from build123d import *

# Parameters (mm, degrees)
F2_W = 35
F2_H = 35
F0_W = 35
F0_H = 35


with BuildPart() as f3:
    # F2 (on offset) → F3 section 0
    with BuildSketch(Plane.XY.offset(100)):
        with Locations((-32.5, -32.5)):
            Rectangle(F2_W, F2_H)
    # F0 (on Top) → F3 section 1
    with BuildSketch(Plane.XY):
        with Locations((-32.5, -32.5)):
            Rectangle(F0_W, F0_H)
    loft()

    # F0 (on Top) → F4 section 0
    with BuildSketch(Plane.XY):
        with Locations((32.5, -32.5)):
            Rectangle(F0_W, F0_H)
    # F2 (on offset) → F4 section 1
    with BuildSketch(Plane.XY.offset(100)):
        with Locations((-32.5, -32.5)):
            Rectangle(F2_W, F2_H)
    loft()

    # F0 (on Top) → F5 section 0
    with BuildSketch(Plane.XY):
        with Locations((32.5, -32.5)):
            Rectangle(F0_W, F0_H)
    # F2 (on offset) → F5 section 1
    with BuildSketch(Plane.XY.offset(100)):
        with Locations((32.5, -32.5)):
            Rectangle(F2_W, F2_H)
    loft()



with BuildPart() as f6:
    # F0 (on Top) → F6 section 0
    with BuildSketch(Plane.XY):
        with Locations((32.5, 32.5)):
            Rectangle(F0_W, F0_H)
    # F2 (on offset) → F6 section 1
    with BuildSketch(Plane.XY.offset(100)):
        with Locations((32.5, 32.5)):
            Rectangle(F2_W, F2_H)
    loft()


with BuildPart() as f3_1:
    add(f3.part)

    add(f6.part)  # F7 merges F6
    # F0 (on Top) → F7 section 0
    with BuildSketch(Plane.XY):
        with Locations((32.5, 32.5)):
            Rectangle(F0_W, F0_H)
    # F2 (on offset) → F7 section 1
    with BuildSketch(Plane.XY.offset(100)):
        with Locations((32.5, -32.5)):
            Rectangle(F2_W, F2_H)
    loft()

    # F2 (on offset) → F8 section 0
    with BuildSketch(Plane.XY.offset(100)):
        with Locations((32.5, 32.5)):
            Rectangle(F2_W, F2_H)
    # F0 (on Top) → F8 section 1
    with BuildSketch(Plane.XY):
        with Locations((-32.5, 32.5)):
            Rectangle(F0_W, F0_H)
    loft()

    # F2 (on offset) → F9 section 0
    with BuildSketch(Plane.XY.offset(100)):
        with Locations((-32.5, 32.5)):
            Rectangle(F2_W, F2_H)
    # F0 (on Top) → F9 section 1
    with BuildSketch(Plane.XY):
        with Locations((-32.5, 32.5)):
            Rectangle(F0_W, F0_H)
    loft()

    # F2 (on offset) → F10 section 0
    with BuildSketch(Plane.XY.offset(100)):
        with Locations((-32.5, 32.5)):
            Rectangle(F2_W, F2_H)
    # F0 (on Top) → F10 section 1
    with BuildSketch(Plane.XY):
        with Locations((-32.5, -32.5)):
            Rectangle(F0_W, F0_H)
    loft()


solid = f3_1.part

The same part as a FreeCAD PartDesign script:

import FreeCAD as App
import Part
import Sketcher

V = App.Vector

doc = App.newDocument("Part")
params = doc.addObject("Spreadsheet::Sheet", "Params")
for row, (alias, value) in enumerate([
    ("sketch1_width", "35 mm"),
    ("sketch2_width", "35 mm"),
    ("sketch3_width", "35 mm"),
    ("sketch4_width", "35 mm"),
    ("sketch5_width", "35 mm"),
    ("sketch6_width", "35 mm"),
    ("sketch7_width", "35 mm"),
    ("sketch8_width", "35 mm"),
    ("sketch9_width", "35 mm"),
    ("sketch10_width", "35 mm"),
    ("sketch11_width", "35 mm"),
    ("sketch12_width", "35 mm"),
    ("sketch13_width", "35 mm"),
    ("sketch14_width", "35 mm"),
    ("sketch15_width", "35 mm"),
    ("sketch16_width", "35 mm"),
], start=1):
    params.set(f"A{row}", alias)
    params.set(f"B{row}", "=" + value)
    params.setAlias(f"B{row}", alias)

body = doc.addObject("PartDesign::Body", "Body")

sketch1 = body.newObject("Sketcher::SketchObject", "Sketch")
sketch1.AttachmentSupport = (doc.getObject("XY_Plane"), [""])
sketch1.MapMode = "FlatFace"
sketch1.AttachmentOffset = App.Placement(V(0, 0, 100), App.Rotation())
sketch1.addGeometry([
    Part.LineSegment(V(-50, -15, 0), V(-50, -50, 0)),
    Part.LineSegment(V(-50, -50, 0), V(-15, -50, 0)),
    Part.LineSegment(V(-15, -50, 0), V(-15, -15, 0)),
    Part.LineSegment(V(-15, -15, 0), V(-50, -15, 0)),
], False)
sketch1.addConstraint([
    Sketcher.Constraint("Coincident", 0, 2, 1, 1),
    Sketcher.Constraint("Coincident", 1, 2, 2, 1),
    Sketcher.Constraint("Coincident", 2, 2, 3, 1),
    Sketcher.Constraint("Coincident", 3, 2, 0, 1),
    Sketcher.Constraint("Vertical", 0),
    Sketcher.Constraint("Horizontal", 1),
    Sketcher.Constraint("Vertical", 2),
    Sketcher.Constraint("Horizontal", 3),
    Sketcher.Constraint("Equal", 3, 0),
    Sketcher.Constraint("DistanceX", 1, 1, 1, 2, 35.0),
    Sketcher.Constraint("DistanceX", 0, 2, -1, 1, 50.0),
    Sketcher.Constraint("DistanceY", 0, 2, -1, 1, 50.0),
])
sketch1.setExpression("Constraints[9]", "Params.sketch1_width")

sketch2 = body.newObject("Sketcher::SketchObject", "Sketch001")
sketch2.AttachmentSupport = (doc.getObject("XY_Plane"), [""])
sketch2.MapMode = "FlatFace"
sketch2.addGeometry([
    Part.LineSegment(V(-50, -15, 0), V(-50, -50, 0)),
    Part.LineSegment(V(-50, -50, 0), V(-15, -50, 0)),
    Part.LineSegment(V(-15, -50, 0), V(-15, -15, 0)),
    Part.LineSegment(V(-15, -15, 0), V(-50, -15, 0)),
], False)
sketch2.addConstraint([
    Sketcher.Constraint("Coincident", 0, 2, 1, 1),
    Sketcher.Constraint("Coincident", 1, 2, 2, 1),
    Sketcher.Constraint("Coincident", 2, 2, 3, 1),
    Sketcher.Constraint("Coincident", 3, 2, 0, 1),
    Sketcher.Constraint("Vertical", 0),
    Sketcher.Constraint("Horizontal", 1),
    Sketcher.Constraint("Vertical", 2),
    Sketcher.Constraint("Horizontal", 3),
    Sketcher.Constraint("Equal", 3, 0),
    Sketcher.Constraint("DistanceX", 1, 1, 1, 2, 35.0),
    Sketcher.Constraint("DistanceX", 0, 2, -1, 1, 50.0),
    Sketcher.Constraint("DistanceY", 0, 2, -1, 1, 50.0),
])
sketch2.setExpression("Constraints[9]", "Params.sketch2_width")

additiveloft = body.newObject("PartDesign::AdditiveLoft", "AdditiveLoft")
additiveloft.Profile = sketch1
additiveloft.Sections = [sketch2]

sketch3 = body.newObject("Sketcher::SketchObject", "Sketch002")
sketch3.AttachmentSupport = (doc.getObject("XY_Plane"), [""])
sketch3.MapMode = "FlatFace"
sketch3.addGeometry([
    Part.LineSegment(V(15, -15, 0), V(15, -50, 0)),
    Part.LineSegment(V(15, -50, 0), V(50, -50, 0)),
    Part.LineSegment(V(50, -50, 0), V(50, -15, 0)),
    Part.LineSegment(V(50, -15, 0), V(15, -15, 0)),
], False)
sketch3.addConstraint([
    Sketcher.Constraint("Coincident", 0, 2, 1, 1),
    Sketcher.Constraint("Coincident", 1, 2, 2, 1),
    Sketcher.Constraint("Coincident", 2, 2, 3, 1),
    Sketcher.Constraint("Coincident", 3, 2, 0, 1),
    Sketcher.Constraint("Vertical", 0),
    Sketcher.Constraint("Horizontal", 1),
    Sketcher.Constraint("Vertical", 2),
    Sketcher.Constraint("Horizontal", 3),
    Sketcher.Constraint("Equal", 3, 0),
    Sketcher.Constraint("DistanceX", 1, 1, 1, 2, 35.0),
    Sketcher.Constraint("DistanceX", -1, 1, 0, 2, 15.0),
    Sketcher.Constraint("DistanceY", 0, 2, -1, 1, 50.0),
])
sketch3.setExpression("Constraints[9]", "Params.sketch3_width")

sketch4 = body.newObject("Sketcher::SketchObject", "Sketch003")
sketch4.AttachmentSupport = (doc.getObject("XY_Plane"), [""])
sketch4.MapMode = "FlatFace"
sketch4.AttachmentOffset = App.Placement(V(0, 0, 100), App.Rotation())
sketch4.addGeometry([
    Part.LineSegment(V(-50, -15, 0), V(-50, -50, 0)),
    Part.LineSegment(V(-50, -50, 0), V(-15, -50, 0)),
    Part.LineSegment(V(-15, -50, 0), V(-15, -15, 0)),
    Part.LineSegment(V(-15, -15, 0), V(-50, -15, 0)),
], False)
sketch4.addConstraint([
    Sketcher.Constraint("Coincident", 0, 2, 1, 1),
    Sketcher.Constraint("Coincident", 1, 2, 2, 1),
    Sketcher.Constraint("Coincident", 2, 2, 3, 1),
    Sketcher.Constraint("Coincident", 3, 2, 0, 1),
    Sketcher.Constraint("Vertical", 0),
    Sketcher.Constraint("Horizontal", 1),
    Sketcher.Constraint("Vertical", 2),
    Sketcher.Constraint("Horizontal", 3),
    Sketcher.Constraint("Equal", 3, 0),
    Sketcher.Constraint("DistanceX", 1, 1, 1, 2, 35.0),
    Sketcher.Constraint("DistanceX", 0, 2, -1, 1, 50.0),
    Sketcher.Constraint("DistanceY", 0, 2, -1, 1, 50.0),
])
sketch4.setExpression("Constraints[9]", "Params.sketch4_width")

additiveloft2 = body.newObject("PartDesign::AdditiveLoft", "AdditiveLoft001")
additiveloft2.Profile = sketch3
additiveloft2.Sections = [sketch4]

sketch5 = body.newObject("Sketcher::SketchObject", "Sketch004")
sketch5.AttachmentSupport = (doc.getObject("XY_Plane"), [""])
sketch5.MapMode = "FlatFace"
sketch5.addGeometry([
    Part.LineSegment(V(15, -15, 0), V(15, -50, 0)),
    Part.LineSegment(V(15, -50, 0), V(50, -50, 0)),
    Part.LineSegment(V(50, -50, 0), V(50, -15, 0)),
    Part.LineSegment(V(50, -15, 0), V(15, -15, 0)),
], False)
sketch5.addConstraint([
    Sketcher.Constraint("Coincident", 0, 2, 1, 1),
    Sketcher.Constraint("Coincident", 1, 2, 2, 1),
    Sketcher.Constraint("Coincident", 2, 2, 3, 1),
    Sketcher.Constraint("Coincident", 3, 2, 0, 1),
    Sketcher.Constraint("Vertical", 0),
    Sketcher.Constraint("Horizontal", 1),
    Sketcher.Constraint("Vertical", 2),
    Sketcher.Constraint("Horizontal", 3),
    Sketcher.Constraint("Equal", 3, 0),
    Sketcher.Constraint("DistanceX", 1, 1, 1, 2, 35.0),
    Sketcher.Constraint("DistanceX", -1, 1, 0, 2, 15.0),
    Sketcher.Constraint("DistanceY", 0, 2, -1, 1, 50.0),
])
sketch5.setExpression("Constraints[9]", "Params.sketch5_width")

sketch6 = body.newObject("Sketcher::SketchObject", "Sketch005")
sketch6.AttachmentSupport = (doc.getObject("XY_Plane"), [""])
sketch6.MapMode = "FlatFace"
sketch6.AttachmentOffset = App.Placement(V(0, 0, 100), App.Rotation())
sketch6.addGeometry([
    Part.LineSegment(V(15, -15, 0), V(15, -50, 0)),
    Part.LineSegment(V(15, -50, 0), V(50, -50, 0)),
    Part.LineSegment(V(50, -50, 0), V(50, -15, 0)),
    Part.LineSegment(V(50, -15, 0), V(15, -15, 0)),
], False)
sketch6.addConstraint([
    Sketcher.Constraint("Coincident", 0, 2, 1, 1),
    Sketcher.Constraint("Coincident", 1, 2, 2, 1),
    Sketcher.Constraint("Coincident", 2, 2, 3, 1),
    Sketcher.Constraint("Coincident", 3, 2, 0, 1),
    Sketcher.Constraint("Vertical", 0),
    Sketcher.Constraint("Horizontal", 1),
    Sketcher.Constraint("Vertical", 2),
    Sketcher.Constraint("Horizontal", 3),
    Sketcher.Constraint("Equal", 3, 0),
    Sketcher.Constraint("DistanceX", 1, 1, 1, 2, 35.0),
    Sketcher.Constraint("DistanceX", -1, 1, 0, 2, 15.0),
    Sketcher.Constraint("DistanceY", 0, 2, -1, 1, 50.0),
])
sketch6.setExpression("Constraints[9]", "Params.sketch6_width")

additiveloft3 = body.newObject("PartDesign::AdditiveLoft", "AdditiveLoft002")
additiveloft3.Profile = sketch5
additiveloft3.Sections = [sketch6]
body2 = doc.addObject("PartDesign::Body", "Body001")

sketch7 = body2.newObject("Sketcher::SketchObject", "Sketch006")
sketch7.AttachmentSupport = (doc.getObject("XY_Plane001"), [""])
sketch7.MapMode = "FlatFace"
sketch7.addGeometry([
    Part.LineSegment(V(15, 50, 0), V(15, 15, 0)),
    Part.LineSegment(V(15, 15, 0), V(50, 15, 0)),
    Part.LineSegment(V(50, 15, 0), V(50, 50, 0)),
    Part.LineSegment(V(50, 50, 0), V(15, 50, 0)),
], False)
sketch7.addConstraint([
    Sketcher.Constraint("Coincident", 0, 2, 1, 1),
    Sketcher.Constraint("Coincident", 1, 2, 2, 1),
    Sketcher.Constraint("Coincident", 2, 2, 3, 1),
    Sketcher.Constraint("Coincident", 3, 2, 0, 1),
    Sketcher.Constraint("Vertical", 0),
    Sketcher.Constraint("Horizontal", 1),
    Sketcher.Constraint("Vertical", 2),
    Sketcher.Constraint("Horizontal", 3),
    Sketcher.Constraint("Equal", 3, 0),
    Sketcher.Constraint("DistanceX", 1, 1, 1, 2, 35.0),
    Sketcher.Constraint("DistanceX", -1, 1, 0, 2, 15.0),
    Sketcher.Constraint("DistanceY", -1, 1, 0, 2, 15.0),
])
sketch7.setExpression("Constraints[9]", "Params.sketch7_width")

sketch8 = body2.newObject("Sketcher::SketchObject", "Sketch007")
sketch8.AttachmentSupport = (doc.getObject("XY_Plane001"), [""])
sketch8.MapMode = "FlatFace"
sketch8.AttachmentOffset = App.Placement(V(0, 0, 100), App.Rotation())
sketch8.addGeometry([
    Part.LineSegment(V(15, 50, 0), V(15, 15, 0)),
    Part.LineSegment(V(15, 15, 0), V(50, 15, 0)),
    Part.LineSegment(V(50, 15, 0), V(50, 50, 0)),
    Part.LineSegment(V(50, 50, 0), V(15, 50, 0)),
], False)
sketch8.addConstraint([
    Sketcher.Constraint("Coincident", 0, 2, 1, 1),
    Sketcher.Constraint("Coincident", 1, 2, 2, 1),
    Sketcher.Constraint("Coincident", 2, 2, 3, 1),
    Sketcher.Constraint("Coincident", 3, 2, 0, 1),
    Sketcher.Constraint("Vertical", 0),
    Sketcher.Constraint("Horizontal", 1),
    Sketcher.Constraint("Vertical", 2),
    Sketcher.Constraint("Horizontal", 3),
    Sketcher.Constraint("Equal", 3, 0),
    Sketcher.Constraint("DistanceX", 1, 1, 1, 2, 35.0),
    Sketcher.Constraint("DistanceX", -1, 1, 0, 2, 15.0),
    Sketcher.Constraint("DistanceY", -1, 1, 0, 2, 15.0),
])
sketch8.setExpression("Constraints[9]", "Params.sketch8_width")

additiveloft4 = body2.newObject("PartDesign::AdditiveLoft", "AdditiveLoft003")
additiveloft4.Profile = sketch7
additiveloft4.Sections = [sketch8]
body.AllowCompound = True
doc.recompute()

boolean = body.newObject("PartDesign::Boolean", "Boolean")
boolean.Type = "Fuse"
boolean.addObjects([body2])

sketch9 = body.newObject("Sketcher::SketchObject", "Sketch008")
sketch9.AttachmentSupport = (doc.getObject("XY_Plane"), [""])
sketch9.MapMode = "FlatFace"
sketch9.addGeometry([
    Part.LineSegment(V(15, 50, 0), V(15, 15, 0)),
    Part.LineSegment(V(15, 15, 0), V(50, 15, 0)),
    Part.LineSegment(V(50, 15, 0), V(50, 50, 0)),
    Part.LineSegment(V(50, 50, 0), V(15, 50, 0)),
], False)
sketch9.addConstraint([
    Sketcher.Constraint("Coincident", 0, 2, 1, 1),
    Sketcher.Constraint("Coincident", 1, 2, 2, 1),
    Sketcher.Constraint("Coincident", 2, 2, 3, 1),
    Sketcher.Constraint("Coincident", 3, 2, 0, 1),
    Sketcher.Constraint("Vertical", 0),
    Sketcher.Constraint("Horizontal", 1),
    Sketcher.Constraint("Vertical", 2),
    Sketcher.Constraint("Horizontal", 3),
    Sketcher.Constraint("Equal", 3, 0),
    Sketcher.Constraint("DistanceX", 1, 1, 1, 2, 35.0),
    Sketcher.Constraint("DistanceX", -1, 1, 0, 2, 15.0),
    Sketcher.Constraint("DistanceY", -1, 1, 0, 2, 15.0),
])
sketch9.setExpression("Constraints[9]", "Params.sketch9_width")

sketch10 = body.newObject("Sketcher::SketchObject", "Sketch009")
sketch10.AttachmentSupport = (doc.getObject("XY_Plane"), [""])
sketch10.MapMode = "FlatFace"
sketch10.AttachmentOffset = App.Placement(V(0, 0, 100), App.Rotation())
sketch10.addGeometry([
    Part.LineSegment(V(15, -15, 0), V(15, -50, 0)),
    Part.LineSegment(V(15, -50, 0), V(50, -50, 0)),
    Part.LineSegment(V(50, -50, 0), V(50, -15, 0)),
    Part.LineSegment(V(50, -15, 0), V(15, -15, 0)),
], False)
sketch10.addConstraint([
    Sketcher.Constraint("Coincident", 0, 2, 1, 1),
    Sketcher.Constraint("Coincident", 1, 2, 2, 1),
    Sketcher.Constraint("Coincident", 2, 2, 3, 1),
    Sketcher.Constraint("Coincident", 3, 2, 0, 1),
    Sketcher.Constraint("Vertical", 0),
    Sketcher.Constraint("Horizontal", 1),
    Sketcher.Constraint("Vertical", 2),
    Sketcher.Constraint("Horizontal", 3),
    Sketcher.Constraint("Equal", 3, 0),
    Sketcher.Constraint("DistanceX", 1, 1, 1, 2, 35.0),
    Sketcher.Constraint("DistanceX", -1, 1, 0, 2, 15.0),
    Sketcher.Constraint("DistanceY", 0, 2, -1, 1, 50.0),
])
sketch10.setExpression("Constraints[9]", "Params.sketch10_width")

additiveloft5 = body.newObject("PartDesign::AdditiveLoft", "AdditiveLoft004")
additiveloft5.Profile = sketch9
additiveloft5.Sections = [sketch10]

sketch11 = body.newObject("Sketcher::SketchObject", "Sketch010")
sketch11.AttachmentSupport = (doc.getObject("XY_Plane"), [""])
sketch11.MapMode = "FlatFace"
sketch11.AttachmentOffset = App.Placement(V(0, 0, 100), App.Rotation())
sketch11.addGeometry([
    Part.LineSegment(V(15, 50, 0), V(15, 15, 0)),
    Part.LineSegment(V(15, 15, 0), V(50, 15, 0)),
    Part.LineSegment(V(50, 15, 0), V(50, 50, 0)),
    Part.LineSegment(V(50, 50, 0), V(15, 50, 0)),
], False)
sketch11.addConstraint([
    Sketcher.Constraint("Coincident", 0, 2, 1, 1),
    Sketcher.Constraint("Coincident", 1, 2, 2, 1),
    Sketcher.Constraint("Coincident", 2, 2, 3, 1),
    Sketcher.Constraint("Coincident", 3, 2, 0, 1),
    Sketcher.Constraint("Vertical", 0),
    Sketcher.Constraint("Horizontal", 1),
    Sketcher.Constraint("Vertical", 2),
    Sketcher.Constraint("Horizontal", 3),
    Sketcher.Constraint("Equal", 3, 0),
    Sketcher.Constraint("DistanceX", 1, 1, 1, 2, 35.0),
    Sketcher.Constraint("DistanceX", -1, 1, 0, 2, 15.0),
    Sketcher.Constraint("DistanceY", -1, 1, 0, 2, 15.0),
])
sketch11.setExpression("Constraints[9]", "Params.sketch11_width")

sketch12 = body.newObject("Sketcher::SketchObject", "Sketch011")
sketch12.AttachmentSupport = (doc.getObject("XY_Plane"), [""])
sketch12.MapMode = "FlatFace"
sketch12.addGeometry([
    Part.LineSegment(V(-50, 50, 0), V(-50, 15, 0)),
    Part.LineSegment(V(-50, 15, 0), V(-15, 15, 0)),
    Part.LineSegment(V(-15, 15, 0), V(-15, 50, 0)),
    Part.LineSegment(V(-15, 50, 0), V(-50, 50, 0)),
], False)
sketch12.addConstraint([
    Sketcher.Constraint("Coincident", 0, 2, 1, 1),
    Sketcher.Constraint("Coincident", 1, 2, 2, 1),
    Sketcher.Constraint("Coincident", 2, 2, 3, 1),
    Sketcher.Constraint("Coincident", 3, 2, 0, 1),
    Sketcher.Constraint("Vertical", 0),
    Sketcher.Constraint("Horizontal", 1),
    Sketcher.Constraint("Vertical", 2),
    Sketcher.Constraint("Horizontal", 3),
    Sketcher.Constraint("Equal", 3, 0),
    Sketcher.Constraint("DistanceX", 1, 1, 1, 2, 35.0),
    Sketcher.Constraint("DistanceX", 0, 2, -1, 1, 50.0),
    Sketcher.Constraint("DistanceY", -1, 1, 0, 2, 15.0),
])
sketch12.setExpression("Constraints[9]", "Params.sketch12_width")

additiveloft6 = body.newObject("PartDesign::AdditiveLoft", "AdditiveLoft005")
additiveloft6.Profile = sketch11
additiveloft6.Sections = [sketch12]

sketch13 = body.newObject("Sketcher::SketchObject", "Sketch012")
sketch13.AttachmentSupport = (doc.getObject("XY_Plane"), [""])
sketch13.MapMode = "FlatFace"
sketch13.AttachmentOffset = App.Placement(V(0, 0, 100), App.Rotation())
sketch13.addGeometry([
    Part.LineSegment(V(-50, 50, 0), V(-50, 15, 0)),
    Part.LineSegment(V(-50, 15, 0), V(-15, 15, 0)),
    Part.LineSegment(V(-15, 15, 0), V(-15, 50, 0)),
    Part.LineSegment(V(-15, 50, 0), V(-50, 50, 0)),
], False)
sketch13.addConstraint([
    Sketcher.Constraint("Coincident", 0, 2, 1, 1),
    Sketcher.Constraint("Coincident", 1, 2, 2, 1),
    Sketcher.Constraint("Coincident", 2, 2, 3, 1),
    Sketcher.Constraint("Coincident", 3, 2, 0, 1),
    Sketcher.Constraint("Vertical", 0),
    Sketcher.Constraint("Horizontal", 1),
    Sketcher.Constraint("Vertical", 2),
    Sketcher.Constraint("Horizontal", 3),
    Sketcher.Constraint("Equal", 3, 0),
    Sketcher.Constraint("DistanceX", 1, 1, 1, 2, 35.0),
    Sketcher.Constraint("DistanceX", 0, 2, -1, 1, 50.0),
    Sketcher.Constraint("DistanceY", -1, 1, 0, 2, 15.0),
])
sketch13.setExpression("Constraints[9]", "Params.sketch13_width")

sketch14 = body.newObject("Sketcher::SketchObject", "Sketch013")
sketch14.AttachmentSupport = (doc.getObject("XY_Plane"), [""])
sketch14.MapMode = "FlatFace"
sketch14.addGeometry([
    Part.LineSegment(V(-50, 50, 0), V(-50, 15, 0)),
    Part.LineSegment(V(-50, 15, 0), V(-15, 15, 0)),
    Part.LineSegment(V(-15, 15, 0), V(-15, 50, 0)),
    Part.LineSegment(V(-15, 50, 0), V(-50, 50, 0)),
], False)
sketch14.addConstraint([
    Sketcher.Constraint("Coincident", 0, 2, 1, 1),
    Sketcher.Constraint("Coincident", 1, 2, 2, 1),
    Sketcher.Constraint("Coincident", 2, 2, 3, 1),
    Sketcher.Constraint("Coincident", 3, 2, 0, 1),
    Sketcher.Constraint("Vertical", 0),
    Sketcher.Constraint("Horizontal", 1),
    Sketcher.Constraint("Vertical", 2),
    Sketcher.Constraint("Horizontal", 3),
    Sketcher.Constraint("Equal", 3, 0),
    Sketcher.Constraint("DistanceX", 1, 1, 1, 2, 35.0),
    Sketcher.Constraint("DistanceX", 0, 2, -1, 1, 50.0),
    Sketcher.Constraint("DistanceY", -1, 1, 0, 2, 15.0),
])
sketch14.setExpression("Constraints[9]", "Params.sketch14_width")

additiveloft7 = body.newObject("PartDesign::AdditiveLoft", "AdditiveLoft006")
additiveloft7.Profile = sketch13
additiveloft7.Sections = [sketch14]

sketch15 = body.newObject("Sketcher::SketchObject", "Sketch014")
sketch15.AttachmentSupport = (doc.getObject("XY_Plane"), [""])
sketch15.MapMode = "FlatFace"
sketch15.AttachmentOffset = App.Placement(V(0, 0, 100), App.Rotation())
sketch15.addGeometry([
    Part.LineSegment(V(-50, 50, 0), V(-50, 15, 0)),
    Part.LineSegment(V(-50, 15, 0), V(-15, 15, 0)),
    Part.LineSegment(V(-15, 15, 0), V(-15, 50, 0)),
    Part.LineSegment(V(-15, 50, 0), V(-50, 50, 0)),
], False)
sketch15.addConstraint([
    Sketcher.Constraint("Coincident", 0, 2, 1, 1),
    Sketcher.Constraint("Coincident", 1, 2, 2, 1),
    Sketcher.Constraint("Coincident", 2, 2, 3, 1),
    Sketcher.Constraint("Coincident", 3, 2, 0, 1),
    Sketcher.Constraint("Vertical", 0),
    Sketcher.Constraint("Horizontal", 1),
    Sketcher.Constraint("Vertical", 2),
    Sketcher.Constraint("Horizontal", 3),
    Sketcher.Constraint("Equal", 3, 0),
    Sketcher.Constraint("DistanceX", 1, 1, 1, 2, 35.0),
    Sketcher.Constraint("DistanceX", 0, 2, -1, 1, 50.0),
    Sketcher.Constraint("DistanceY", -1, 1, 0, 2, 15.0),
])
sketch15.setExpression("Constraints[9]", "Params.sketch15_width")

sketch16 = body.newObject("Sketcher::SketchObject", "Sketch015")
sketch16.AttachmentSupport = (doc.getObject("XY_Plane"), [""])
sketch16.MapMode = "FlatFace"
sketch16.addGeometry([
    Part.LineSegment(V(-50, -15, 0), V(-50, -50, 0)),
    Part.LineSegment(V(-50, -50, 0), V(-15, -50, 0)),
    Part.LineSegment(V(-15, -50, 0), V(-15, -15, 0)),
    Part.LineSegment(V(-15, -15, 0), V(-50, -15, 0)),
], False)
sketch16.addConstraint([
    Sketcher.Constraint("Coincident", 0, 2, 1, 1),
    Sketcher.Constraint("Coincident", 1, 2, 2, 1),
    Sketcher.Constraint("Coincident", 2, 2, 3, 1),
    Sketcher.Constraint("Coincident", 3, 2, 0, 1),
    Sketcher.Constraint("Vertical", 0),
    Sketcher.Constraint("Horizontal", 1),
    Sketcher.Constraint("Vertical", 2),
    Sketcher.Constraint("Horizontal", 3),
    Sketcher.Constraint("Equal", 3, 0),
    Sketcher.Constraint("DistanceX", 1, 1, 1, 2, 35.0),
    Sketcher.Constraint("DistanceX", 0, 2, -1, 1, 50.0),
    Sketcher.Constraint("DistanceY", 0, 2, -1, 1, 50.0),
])
sketch16.setExpression("Constraints[9]", "Params.sketch16_width")

additiveloft8 = body.newObject("PartDesign::AdditiveLoft", "AdditiveLoft007")
additiveloft8.Profile = sketch15
additiveloft8.Sections = [sketch16]

doc.recompute()
